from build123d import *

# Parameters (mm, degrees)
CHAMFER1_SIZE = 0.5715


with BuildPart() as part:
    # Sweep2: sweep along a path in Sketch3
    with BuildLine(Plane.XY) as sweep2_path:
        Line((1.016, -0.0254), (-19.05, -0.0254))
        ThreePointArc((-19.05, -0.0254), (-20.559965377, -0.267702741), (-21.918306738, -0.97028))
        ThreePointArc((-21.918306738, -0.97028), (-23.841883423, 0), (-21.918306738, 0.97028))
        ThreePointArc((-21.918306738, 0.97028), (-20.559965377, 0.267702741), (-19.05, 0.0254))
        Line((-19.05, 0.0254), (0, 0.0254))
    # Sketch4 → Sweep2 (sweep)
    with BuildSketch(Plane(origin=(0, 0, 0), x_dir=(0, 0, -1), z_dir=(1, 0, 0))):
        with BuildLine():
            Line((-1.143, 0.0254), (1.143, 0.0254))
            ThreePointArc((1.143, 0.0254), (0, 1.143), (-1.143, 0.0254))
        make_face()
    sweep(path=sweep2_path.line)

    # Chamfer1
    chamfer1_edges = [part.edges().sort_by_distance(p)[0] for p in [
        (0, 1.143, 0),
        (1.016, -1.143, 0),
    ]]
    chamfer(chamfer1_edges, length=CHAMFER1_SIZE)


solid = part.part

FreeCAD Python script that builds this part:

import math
import FreeCAD as App
import Part
import Sketcher
from FreeCAD import Vector
Q = App.Units.Quantity


def edges_at(feature, points):
    """Names of the edges that pass closest to the given points."""
    edges = feature.Shape.Edges
    near = lambda p: min(range(len(edges)), key=lambda i: edges[i].distToShape(Part.Vertex(*p))[0])
    return sorted({f"Edge{near(p) + 1}" for p in points})

doc = App.newDocument("Part")
params = doc.addObject("Spreadsheet::Sheet", "Params")
for row, (alias, value) in enumerate([
    ("sketch1_height", "0.09 in"),
    ("sketch2_radius", "0.19 in"),
    ("sketch2_width", "0.79 in"),
    ("sketch2_width2", "0.75 in"),
    ("chamfer_size", "0.0225 in"),
], start=1):
    params.set(f"A{row}", alias)
    params.set(f"B{row}", "=" + value)
    params.setAlias(f"B{row}", alias)

body = doc.addObject("PartDesign::Body", "Body")

sketch1 = body.newObject("Sketcher::SketchObject", "Sketch")
sketch1.AttachmentSupport = (doc.getObject("YZ_Plane"), [""])
sketch1.MapMode = "FlatFace"
sketch1.addGeometry(Part.LineSegment(Vector(0, 1.1, 0), Vector(0, -1.1, 0)), False)
sketch1.addGeometry(Part.ArcOfCircle(Part.Circle(Vector(0, 0, 0), Vector(0, 0, 1), 1.1), math.radians(-89), math.radians(89)), False)
sketch1.addConstraint(Sketcher.Constraint("Coincident", 0, 1, 1, 2))
sketch1.addConstraint(Sketcher.Constraint("Coincident", 1, 1, 0, 2))
sketch1.addConstraint(Sketcher.Constraint("Vertical", 0))
sketch1.addConstraint(Sketcher.Constraint("PointOnObject", 1, 3, -1))
sketch1.addConstraint(Sketcher.Constraint("DistanceY", 0, 2, 0, 1, Q("0.09 in")))
sketch1.addConstraint(Sketcher.Constraint("DistanceX", -1, 1, 0, 1, Q("0.001 in")))
sketch1.addConstraint(Sketcher.Constraint("Radius", 1, Q("1.143289 mm")))
sketch1.setExpression("Constraints[4]", "Params.sketch1_height")

sketch2 = body.newObject("Sketcher::SketchObject", "Sketch001")
sketch2.AttachmentSupport = (doc.getObject("XY_Plane"), [""])
sketch2.MapMode = "FlatFace"
sketch2.addGeometry(Part.LineSegment(Vector(1, 0, 0), Vector(-19.1, 0, 0)), False)
sketch2.addGeometry(Part.ArcOfCircle(Part.Circle(Vector(-19.1, -4.9, 0), Vector(0, 0, 1), 4.8), math.radians(90), math.radians(126)), False)
sketch2.addGeometry(Part.ArcOfCircle(Part.Circle(Vector(-22.6, 0, 0), Vector(0, 0, 1), 1.2), math.radians(54), math.radians(306)), False)
sketch2.addGeometry(Part.ArcOfCircle(Part.Circle(Vector(-19.1, 4.9, 0), Vector(0, 0, 1), 4.8), math.radians(-126), math.radians(-90)), False)
sketch2.addGeometry(Part.LineSegment(Vector(-19.1, 0, 0), Vector(0, 0, 0)), False)
sketch2.addConstraint(Sketcher.Constraint("Tangent", 0, 2, 1, 1))
sketch2.addConstraint(Sketcher.Constraint("Tangent", 1, 2, 2, 2))
sketch2.addConstraint(Sketcher.Constraint("Tangent", 2, 1, 3, 1))
sketch2.addConstraint(Sketcher.Constraint("Tangent", 3, 2, 4, 1))
sketch2.addConstraint(Sketcher.Constraint("Horizontal", 0))
sketch2.addConstraint(Sketcher.Constraint("Horizontal", 4))
sketch2.addConstraint(Sketcher.Constraint("Equal", 1, 3))
sketch2.addConstraint(Sketcher.Constraint("Symmetric", 1, 3, 3, 3, -1))
sketch2.addConstraint(Sketcher.Constraint("PointOnObject", 4, 2, -2))
sketch2.addConstraint(Sketcher.Constraint("Radius", 1, Q("0.19 in")))
sketch2.addConstraint(Sketcher.Constraint("DistanceX", 0, 2, 0, 1, Q("0.79 in")))
sketch2.addConstraint(Sketcher.Constraint("DistanceX", 4, 1, 4, 2, Q("0.75 in")))
sketch2.addConstraint(Sketcher.Constraint("Radius", 2, Q("0.0475 in")))
sketch2.addConstraint(Sketcher.Constraint("DistanceY", 1, 3, -1, 1, Q("0.191 in")))
sketch2.setExpression("Constraints[9]", "Params.sketch2_radius")
sketch2.setExpression("Constraints[10]", "Params.sketch2_width")
sketch2.setExpression("Constraints[11]", "Params.sketch2_width2")
doc.recompute()

additivepipe = body.newObject("PartDesign::AdditivePipe", "AdditivePipe")
additivepipe.Profile = sketch1
additivepipe.Spine = (sketch2, ["Edge1", "Edge2", "Edge3", "Edge4", "Edge5"])
doc.recompute()

chamfer = body.newObject("PartDesign::Chamfer", "Chamfer")
chamfer.Base = (additivepipe, edges_at(additivepipe, [(0, 1.143, 0), (1.016, -1.143, 0)]))
chamfer.setExpression("Size", "Params.chamfer_size")

doc.recompute()
